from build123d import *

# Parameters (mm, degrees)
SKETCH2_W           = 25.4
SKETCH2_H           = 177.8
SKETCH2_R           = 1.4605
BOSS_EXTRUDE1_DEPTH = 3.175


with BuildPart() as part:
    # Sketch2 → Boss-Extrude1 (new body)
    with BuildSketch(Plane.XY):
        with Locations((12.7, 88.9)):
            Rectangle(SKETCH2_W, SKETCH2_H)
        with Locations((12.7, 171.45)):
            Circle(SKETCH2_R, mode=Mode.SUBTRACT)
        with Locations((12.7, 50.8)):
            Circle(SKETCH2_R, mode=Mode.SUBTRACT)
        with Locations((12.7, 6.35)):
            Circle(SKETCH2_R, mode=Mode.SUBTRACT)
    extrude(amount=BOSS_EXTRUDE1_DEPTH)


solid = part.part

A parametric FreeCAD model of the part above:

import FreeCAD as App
import Part
import Sketcher

V = App.Vector
Q = App.Units.Quantity

doc = App.newDocument("Part")
params = doc.addObject("Spreadsheet::Sheet", "Params")
for row, (alias, value) in enumerate([
    ("sketch1_width", "1 in"),
    ("sketch1_height", "7 in"),
    ("sketch1_diameter", "0.115 in"),
    ("pad1_length", "0.125 in"),
], start=1):
    params.set(f"A{row}", alias)
    params.set(f"B{row}", "=" + value)
    params.setAlias(f"B{row}", alias)

body = doc.addObject("PartDesign::Body", "Body")

# Sketch on XY plane
sketch1 = body.newObject("Sketcher::SketchObject", "Sketch")
sketch1.AttachmentSupport = (doc.getObject("XY_Plane"), [""])
sketch1.MapMode = "FlatFace"
sketch1.addGeometry(Part.LineSegment(V(0, 177.8, 0), V(0, 0, 0)), False)
sketch1.addGeometry(Part.LineSegment(V(0, 0, 0), V(25.4, 0, 0)), False)
sketch1.addGeometry(Part.LineSegment(V(25.4, 0, 0), V(25.4, 177.8, 0)), False)
sketch1.addGeometry(Part.LineSegment(V(25.4, 177.8, 0), V(0, 177.8, 0)), False)
sketch1.addGeometry(Part.Circle(V(12.7, 6.35, 0), V(0, 0, 1), 1.4605), False)
sketch1.addGeometry(Part.Circle(V(12.7, 50.8, 0), V(0, 0, 1), 1.4605), False)
sketch1.addGeometry(Part.Circle(V(12.7, 171.45, 0), V(0, 0, 1), 1.4605), False)
sketch1.addConstraint(Sketcher.Constraint("Coincident", 0, 2, 1, 1))
sketch1.addConstraint(Sketcher.Constraint("Coincident", 1, 2, 2, 1))
sketch1.addConstraint(Sketcher.Constraint("Coincident", 2, 2, 3, 1))
sketch1.addConstraint(Sketcher.Constraint("Coincident", 3, 2, 0, 1))
sketch1.addConstraint(Sketcher.Constraint("Vertical", 0))
sketch1.addConstraint(Sketcher.Constraint("Horizontal", 1))
sketch1.addConstraint(Sketcher.Constraint("Vertical", 2))
sketch1.addConstraint(Sketcher.Constraint("Horizontal", 3))
sketch1.addConstraint(Sketcher.Constraint("Coincident", 0, 2, -1, 1))
sketch1.addConstraint(Sketcher.Constraint("Equal", 4, 5))
sketch1.addConstraint(Sketcher.Constraint("Equal", 5, 6))
sketch1.addConstraint(Sketcher.Constraint("Vertical", 4, 3, 5, 3))
sketch1.addConstraint(Sketcher.Constraint("Vertical", 5, 3, 6, 3))
sketch1.addConstraint(Sketcher.Constraint("DistanceX", 1, 1, 1, 2, Q("1 in")))
sketch1.addConstraint(Sketcher.Constraint("DistanceY", 0, 2, 0, 1, Q("7 in")))
sketch1.addConstraint(Sketcher.Constraint("Diameter", 4, Q("0.115 in")))
sketch1.addConstraint(Sketcher.Constraint("DistanceY", -1, 1, 5, 3, Q("2 in")))
sketch1.addConstraint(Sketcher.Constraint("DistanceX", -1, 1, 4, 3, Q("0.5 in")))
sketch1.addConstraint(Sketcher.Constraint("DistanceY", 4, 3, 6, 3, Q("6.5 in")))
sketch1.addConstraint(Sketcher.Constraint("DistanceY", -1, 1, 4, 3, Q("0.25 in")))
sketch1.setExpression("Constraints[13]", "Params.sketch1_width")
sketch1.setExpression("Constraints[14]", "Params.sketch1_height")
sketch1.setExpression("Constraints[15]", "Params.sketch1_diameter")
pad1 = body.newObject("PartDesign::Pad", "Pad")
pad1.Profile = sketch1
pad1.setExpression("Length", "Params.pad1_length")

doc.recompute()
